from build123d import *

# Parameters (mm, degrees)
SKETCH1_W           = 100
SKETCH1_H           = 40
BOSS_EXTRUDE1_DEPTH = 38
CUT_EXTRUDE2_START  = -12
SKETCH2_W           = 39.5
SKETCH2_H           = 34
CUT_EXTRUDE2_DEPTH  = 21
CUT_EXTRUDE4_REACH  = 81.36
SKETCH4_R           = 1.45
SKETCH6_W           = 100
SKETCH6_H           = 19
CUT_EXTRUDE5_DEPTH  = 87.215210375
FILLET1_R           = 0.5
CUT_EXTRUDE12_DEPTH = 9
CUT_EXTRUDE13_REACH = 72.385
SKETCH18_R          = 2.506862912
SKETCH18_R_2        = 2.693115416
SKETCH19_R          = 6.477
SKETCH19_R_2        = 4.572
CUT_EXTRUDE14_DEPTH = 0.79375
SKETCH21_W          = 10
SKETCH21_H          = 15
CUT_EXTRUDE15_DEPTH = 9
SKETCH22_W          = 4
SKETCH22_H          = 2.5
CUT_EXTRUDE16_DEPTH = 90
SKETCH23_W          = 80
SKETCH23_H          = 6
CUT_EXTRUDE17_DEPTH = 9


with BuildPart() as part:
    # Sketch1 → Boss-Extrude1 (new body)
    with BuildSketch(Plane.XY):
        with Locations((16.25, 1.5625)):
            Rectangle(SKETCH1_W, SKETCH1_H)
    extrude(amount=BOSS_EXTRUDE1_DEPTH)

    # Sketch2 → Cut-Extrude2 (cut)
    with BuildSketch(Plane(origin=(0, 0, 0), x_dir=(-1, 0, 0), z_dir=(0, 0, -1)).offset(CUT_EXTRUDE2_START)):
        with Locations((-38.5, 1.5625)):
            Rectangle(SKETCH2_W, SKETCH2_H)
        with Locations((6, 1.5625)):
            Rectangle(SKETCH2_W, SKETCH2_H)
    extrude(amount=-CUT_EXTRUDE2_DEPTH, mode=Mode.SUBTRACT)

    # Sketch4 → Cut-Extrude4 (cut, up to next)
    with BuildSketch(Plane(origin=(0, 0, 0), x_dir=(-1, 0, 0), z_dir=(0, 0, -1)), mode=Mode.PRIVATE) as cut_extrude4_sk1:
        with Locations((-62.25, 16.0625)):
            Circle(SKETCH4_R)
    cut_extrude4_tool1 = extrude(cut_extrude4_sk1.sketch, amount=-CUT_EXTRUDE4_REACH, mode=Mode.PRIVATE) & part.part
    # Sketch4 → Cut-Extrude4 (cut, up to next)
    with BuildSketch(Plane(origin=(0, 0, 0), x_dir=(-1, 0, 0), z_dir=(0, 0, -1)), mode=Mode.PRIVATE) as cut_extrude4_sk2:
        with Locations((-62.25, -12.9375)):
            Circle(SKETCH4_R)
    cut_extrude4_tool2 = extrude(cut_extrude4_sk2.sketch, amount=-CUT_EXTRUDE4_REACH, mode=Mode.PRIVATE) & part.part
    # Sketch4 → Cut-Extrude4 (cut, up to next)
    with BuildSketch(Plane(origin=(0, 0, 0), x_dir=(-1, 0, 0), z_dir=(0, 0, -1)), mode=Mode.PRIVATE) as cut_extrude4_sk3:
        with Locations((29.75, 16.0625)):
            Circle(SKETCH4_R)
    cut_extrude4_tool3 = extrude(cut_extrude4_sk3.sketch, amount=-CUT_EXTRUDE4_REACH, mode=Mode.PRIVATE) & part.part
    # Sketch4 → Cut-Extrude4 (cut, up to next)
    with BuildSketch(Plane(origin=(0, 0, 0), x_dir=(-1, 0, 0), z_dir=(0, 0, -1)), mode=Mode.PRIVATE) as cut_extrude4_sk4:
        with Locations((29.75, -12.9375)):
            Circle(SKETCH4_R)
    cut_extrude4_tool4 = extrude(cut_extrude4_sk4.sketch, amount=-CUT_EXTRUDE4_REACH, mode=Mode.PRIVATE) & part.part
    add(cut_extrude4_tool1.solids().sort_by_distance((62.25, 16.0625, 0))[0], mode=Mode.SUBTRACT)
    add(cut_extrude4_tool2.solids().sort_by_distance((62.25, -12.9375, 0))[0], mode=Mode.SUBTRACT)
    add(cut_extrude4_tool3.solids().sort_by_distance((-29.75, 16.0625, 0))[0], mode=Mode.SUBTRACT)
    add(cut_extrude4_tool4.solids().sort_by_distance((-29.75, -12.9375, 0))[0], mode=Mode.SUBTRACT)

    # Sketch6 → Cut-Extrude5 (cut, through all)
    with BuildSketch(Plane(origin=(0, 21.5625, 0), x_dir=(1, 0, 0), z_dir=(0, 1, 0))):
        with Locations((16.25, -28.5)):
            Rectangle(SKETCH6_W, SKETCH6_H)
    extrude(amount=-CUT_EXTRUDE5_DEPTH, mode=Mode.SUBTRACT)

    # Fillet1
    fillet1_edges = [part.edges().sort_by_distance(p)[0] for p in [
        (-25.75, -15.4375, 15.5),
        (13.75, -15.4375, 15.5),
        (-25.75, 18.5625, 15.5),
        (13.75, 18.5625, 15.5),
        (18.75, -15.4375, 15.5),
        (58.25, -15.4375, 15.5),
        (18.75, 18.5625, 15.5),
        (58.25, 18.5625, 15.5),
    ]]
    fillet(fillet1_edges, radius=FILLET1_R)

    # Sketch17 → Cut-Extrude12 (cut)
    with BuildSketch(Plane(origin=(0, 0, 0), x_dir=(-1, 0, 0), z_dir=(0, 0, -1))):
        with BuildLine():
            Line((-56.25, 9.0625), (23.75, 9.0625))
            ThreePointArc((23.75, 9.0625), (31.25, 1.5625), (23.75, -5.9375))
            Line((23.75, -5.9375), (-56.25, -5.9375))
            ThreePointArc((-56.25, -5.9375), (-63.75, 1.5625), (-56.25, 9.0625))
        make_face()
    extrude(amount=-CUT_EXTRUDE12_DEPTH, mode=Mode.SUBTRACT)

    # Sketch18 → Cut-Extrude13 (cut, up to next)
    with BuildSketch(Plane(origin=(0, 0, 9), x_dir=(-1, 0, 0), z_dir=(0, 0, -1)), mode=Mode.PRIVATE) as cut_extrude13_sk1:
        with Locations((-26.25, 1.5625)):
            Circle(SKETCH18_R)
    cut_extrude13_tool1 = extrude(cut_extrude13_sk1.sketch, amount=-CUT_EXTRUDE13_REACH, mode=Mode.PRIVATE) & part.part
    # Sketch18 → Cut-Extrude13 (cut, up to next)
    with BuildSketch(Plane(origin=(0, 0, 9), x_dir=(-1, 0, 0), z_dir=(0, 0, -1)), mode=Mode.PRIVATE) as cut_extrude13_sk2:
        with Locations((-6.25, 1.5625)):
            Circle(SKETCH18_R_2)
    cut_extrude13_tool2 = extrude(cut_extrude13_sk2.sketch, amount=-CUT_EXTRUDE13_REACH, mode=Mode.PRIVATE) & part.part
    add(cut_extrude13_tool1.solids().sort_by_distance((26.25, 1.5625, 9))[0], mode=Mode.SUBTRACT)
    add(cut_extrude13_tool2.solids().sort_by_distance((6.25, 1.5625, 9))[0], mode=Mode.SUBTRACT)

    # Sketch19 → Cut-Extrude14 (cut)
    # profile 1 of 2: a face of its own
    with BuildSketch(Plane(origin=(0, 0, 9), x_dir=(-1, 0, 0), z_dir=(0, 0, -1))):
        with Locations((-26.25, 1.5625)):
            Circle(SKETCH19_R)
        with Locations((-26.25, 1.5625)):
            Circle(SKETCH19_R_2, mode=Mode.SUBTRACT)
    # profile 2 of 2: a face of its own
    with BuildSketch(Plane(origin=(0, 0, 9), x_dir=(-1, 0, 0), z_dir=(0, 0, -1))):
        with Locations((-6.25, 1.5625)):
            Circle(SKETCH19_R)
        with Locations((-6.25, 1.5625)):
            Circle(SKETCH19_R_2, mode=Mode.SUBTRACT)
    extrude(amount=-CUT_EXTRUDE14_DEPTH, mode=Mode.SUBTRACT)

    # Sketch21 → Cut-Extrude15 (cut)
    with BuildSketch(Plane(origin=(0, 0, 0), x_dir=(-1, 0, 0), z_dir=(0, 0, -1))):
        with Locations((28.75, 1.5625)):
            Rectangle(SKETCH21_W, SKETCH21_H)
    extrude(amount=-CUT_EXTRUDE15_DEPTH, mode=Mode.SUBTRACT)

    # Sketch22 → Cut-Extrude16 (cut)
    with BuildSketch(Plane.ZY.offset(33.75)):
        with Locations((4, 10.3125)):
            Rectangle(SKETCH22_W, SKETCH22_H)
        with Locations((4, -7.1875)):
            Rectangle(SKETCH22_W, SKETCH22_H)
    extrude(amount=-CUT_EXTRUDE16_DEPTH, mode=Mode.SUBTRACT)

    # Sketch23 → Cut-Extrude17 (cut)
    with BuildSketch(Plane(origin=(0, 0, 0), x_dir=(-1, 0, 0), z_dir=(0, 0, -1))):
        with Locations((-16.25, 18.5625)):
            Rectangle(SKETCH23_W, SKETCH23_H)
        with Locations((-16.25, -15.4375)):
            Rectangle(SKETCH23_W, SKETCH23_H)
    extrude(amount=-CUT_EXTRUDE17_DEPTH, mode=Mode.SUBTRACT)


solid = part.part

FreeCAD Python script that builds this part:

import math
import FreeCAD as App
import Part
import Sketcher
from FreeCAD import Vector
Q = App.Units.Quantity


def edges_at(feature, points):
    """Names of the edges that pass closest to the given points."""
    edges = feature.Shape.Edges
    near = lambda p: min(range(len(edges)), key=lambda i: edges[i].distToShape(Part.Vertex(*p))[0])
    return sorted({f"Edge{near(p) + 1}" for p in points})

doc = App.newDocument("Part")
body = doc.addObject("PartDesign::Body", "Body")

sketch1 = body.newObject("Sketcher::SketchObject", "Sketch")
sketch1.AttachmentSupport = (doc.getObject("XY_Plane"), [""])
sketch1.MapMode = "FlatFace"
sketch1.addGeometry([
    Part.LineSegment(Vector(-34, 22, 0), Vector(-34, -18, 0)),
    Part.LineSegment(Vector(-34, -18, 0), Vector(66, -18, 0)),
    Part.LineSegment(Vector(66, -18, 0), Vector(66, 22, 0)),
    Part.LineSegment(Vector(66, 22, 0), Vector(-34, 22, 0)),
], False)
sketch1.addConstraint([
    Sketcher.Constraint("Coincident", 0, 2, 1, 1),
    Sketcher.Constraint("Coincident", 1, 2, 2, 1),
    Sketcher.Constraint("Coincident", 2, 2, 3, 1),
    Sketcher.Constraint("Coincident", 3, 2, 0, 1),
    Sketcher.Constraint("Vertical", 0),
    Sketcher.Constraint("Horizontal", 1),
    Sketcher.Constraint("Vertical", 2),
    Sketcher.Constraint("Horizontal", 3),
    Sketcher.Constraint("DistanceX", 1, 1, 1, 2, Q("100 mm")),
    Sketcher.Constraint("DistanceY", 0, 2, 0, 1, Q("40 mm")),
    Sketcher.Constraint("DistanceX", 0, 2, -1, 1, Q("33.75 mm")),
    Sketcher.Constraint("DistanceY", 0, 2, -1, 1, Q("18.4375 mm")),
])
pad1 = body.newObject("PartDesign::Pad", "Pad")
pad1.Profile = sketch1
pad1.Length = 38

sketch2 = body.newObject("Sketcher::SketchObject", "Sketch001")
sketch2.AttachmentSupport = (doc.getObject("XY_Plane"), [""])
sketch2.MapMode = "FlatFace"
sketch2.AttachmentOffset = App.Placement(Vector(0, 0, 12), App.Rotation())
sketch2.addGeometry([
    Part.LineSegment(Vector(58, 19, 0), Vector(58, -15, 0)),
    Part.LineSegment(Vector(58, -15, 0), Vector(19, -15, 0)),
    Part.LineSegment(Vector(19, -15, 0), Vector(19, 19, 0)),
    Part.LineSegment(Vector(19, 19, 0), Vector(58, 19, 0)),
    Part.LineSegment(Vector(14, 19, 0), Vector(14, -15, 0)),
    Part.LineSegment(Vector(14, -15, 0), Vector(-26, -15, 0)),
    Part.LineSegment(Vector(-26, -15, 0), Vector(-26, 19, 0)),
    Part.LineSegment(Vector(-26, 19, 0), Vector(14, 19, 0)),
], False)
sketch2.addConstraint([
    Sketcher.Constraint("Coincident", 0, 2, 1, 1),
    Sketcher.Constraint("Coincident", 1, 2, 2, 1),
    Sketcher.Constraint("Coincident", 2, 2, 3, 1),
    Sketcher.Constraint("Coincident", 3, 2, 0, 1),
    Sketcher.Constraint("Coincident", 4, 2, 5, 1),
    Sketcher.Constraint("Coincident", 5, 2, 6, 1),
    Sketcher.Constraint("Coincident", 6, 2, 7, 1),
    Sketcher.Constraint("Coincident", 7, 2, 4, 1),
    Sketcher.Constraint("Vertical", 0),
    Sketcher.Constraint("Horizontal", 1),
    Sketcher.Constraint("Vertical", 2),
    Sketcher.Constraint("Horizontal", 3),
    Sketcher.Constraint("Vertical", 4),
    Sketcher.Constraint("Horizontal", 5),
    Sketcher.Constraint("Vertical", 6),
    Sketcher.Constraint("Horizontal", 7),
    Sketcher.Constraint("Horizontal", 1, 2, 4, 2),
    Sketcher.Constraint("Horizontal", 3, 2, 6, 2),
    Sketcher.Constraint("Equal", 3, 5),
    Sketcher.Constraint("DistanceY", 0, 2, 0, 1, Q("34 mm")),
    Sketcher.Constraint("DistanceX", 1, 2, 1, 1, Q("39.5 mm")),
    Sketcher.Constraint("DistanceX", 4, 2, 1, 2, Q("5 mm")),
    Sketcher.Constraint("DistanceX", -1, 1, 0, 2, Q("58.25 mm")),
    Sketcher.Constraint("DistanceY", 0, 2, -1, 1, Q("15.4375 mm")),
])
pocket1 = body.newObject("PartDesign::Pocket", "Pocket")
pocket1.Profile = sketch2
pocket1.Length = 21
pocket1.Reversed = True

sketch3 = body.newObject("Sketcher::SketchObject", "Sketch002")
sketch3.AttachmentSupport = (doc.getObject("XY_Plane"), [""])
sketch3.MapMode = "FlatFace"
sketch3.addGeometry(Part.Circle(Vector(62.2, 16.1, 0), Vector(0, 0, 1), 1.4), False)
sketch3.addConstraint([
    Sketcher.Constraint("Diameter", 0, Q("2.9 mm")),
    Sketcher.Constraint("DistanceX", -1, 1, 0, 3, Q("62.25 mm")),
    Sketcher.Constraint("DistanceY", -1, 1, 0, 3, Q("16.0625 mm")),
])
pocket2 = body.newObject("PartDesign::Pocket", "Pocket001")
pocket2.Profile = sketch3
pocket2.Type = "UpToFirst"
pocket2.Reversed = True

sketch4 = body.newObject("Sketcher::SketchObject", "Sketch003")
sketch4.AttachmentSupport = (doc.getObject("XY_Plane"), [""])
sketch4.MapMode = "FlatFace"
sketch4.addGeometry(Part.Circle(Vector(62.2, -12.9, 0), Vector(0, 0, 1), 1.4), False)
sketch4.addConstraint([
    Sketcher.Constraint("Diameter", 0, Q("2.9 mm")),
    Sketcher.Constraint("DistanceX", -1, 1, 0, 3, Q("62.25 mm")),
    Sketcher.Constraint("DistanceY", 0, 3, -1, 1, Q("12.9375 mm")),
])
pocket3 = body.newObject("PartDesign::Pocket", "Pocket002")
pocket3.Profile = sketch4
pocket3.Type = "UpToFirst"
pocket3.Reversed = True

sketch5 = body.newObject("Sketcher::SketchObject", "Sketch004")
sketch5.AttachmentSupport = (doc.getObject("XY_Plane"), [""])
sketch5.MapMode = "FlatFace"
sketch5.addGeometry(Part.Circle(Vector(-29.8, 16.1, 0), Vector(0, 0, 1), 1.4), False)
sketch5.addConstraint([
    Sketcher.Constraint("Diameter", 0, Q("2.9 mm")),
    Sketcher.Constraint("DistanceX", 0, 3, -1, 1, Q("29.75 mm")),
    Sketcher.Constraint("DistanceY", -1, 1, 0, 3, Q("16.0625 mm")),
])
pocket4 = body.newObject("PartDesign::Pocket", "Pocket003")
pocket4.Profile = sketch5
pocket4.Type = "UpToFirst"
pocket4.Reversed = True

sketch6 = body.newObject("Sketcher::SketchObject", "Sketch005")
sketch6.AttachmentSupport = (doc.getObject("XY_Plane"), [""])
sketch6.MapMode = "FlatFace"
sketch6.addGeometry(Part.Circle(Vector(-29.8, -12.9, 0), Vector(0, 0, 1), 1.4), False)
sketch6.addConstraint([
    Sketcher.Constraint("Diameter", 0, Q("2.9 mm")),
    Sketcher.Constraint("DistanceX", 0, 3, -1, 1, Q("29.75 mm")),
    Sketcher.Constraint("DistanceY", 0, 3, -1, 1, Q("12.9375 mm")),
])
pocket5 = body.newObject("PartDesign::Pocket", "Pocket004")
pocket5.Profile = sketch6
pocket5.Type = "UpToFirst"
pocket5.Reversed = True

sketch7 = body.newObject("Sketcher::SketchObject", "Sketch006")
sketch7.AttachmentSupport = (doc.getObject("XZ_Plane"), [""])
sketch7.MapMode = "FlatFace"
sketch7.AttachmentOffset = App.Placement(Vector(0, 0, -21.5625), App.Rotation())
sketch7.addGeometry([
    Part.LineSegment(Vector(-34, 19, 0), Vector(-34, 38, 0)),
    Part.LineSegment(Vector(-34, 38, 0), Vector(66, 38, 0)),
    Part.LineSegment(Vector(66, 38, 0), Vector(66, 19, 0)),
    Part.LineSegment(Vector(66, 19, 0), Vector(-34, 19, 0)),
], False)
sketch7.addConstraint([
    Sketcher.Constraint("Coincident", 0, 2, 1, 1),
    Sketcher.Constraint("Coincident", 1, 2, 2, 1),
    Sketcher.Constraint("Coincident", 2, 2, 3, 1),
    Sketcher.Constraint("Coincident", 3, 2, 0, 1),
    Sketcher.Constraint("Vertical", 0),
    Sketcher.Constraint("Horizontal", 1),
    Sketcher.Constraint("Vertical", 2),
    Sketcher.Constraint("Horizontal", 3),
    Sketcher.Constraint("DistanceX", 1, 1, 1, 2, Q("100 mm")),
    Sketcher.Constraint("DistanceY", 0, 1, 0, 2, Q("19 mm")),
    Sketcher.Constraint("DistanceY", -1, 1, 0, 2, Q("38 mm")),
    Sketcher.Constraint("DistanceX", 0, 2, -1, 1, Q("33.75 mm")),
])
pocket6 = body.newObject("PartDesign::Pocket", "Pocket005")
pocket6.Profile = sketch7
pocket6.Type = "ThroughAll"
pocket6.Reversed = True
doc.recompute()

fillet = body.newObject("PartDesign::Fillet", "Fillet")
fillet.Base = (pocket6, edges_at(pocket6, [
    (-25.75, -15.438, 15.5),
    (13.75, -15.438, 15.5),
    (-25.75, 18.562, 15.5),
    (13.75, 18.562, 15.5),
    (18.75, -15.438, 15.5),
    (58.25, -15.438, 15.5),
    (18.75, 18.562, 15.5),
    (58.25, 18.562, 15.5),
]))
fillet.Radius = 0.5

sketch8 = body.newObject("Sketcher::SketchObject", "Sketch007")
sketch8.AttachmentSupport = (doc.getObject("XY_Plane"), [""])
sketch8.MapMode = "FlatFace"
sketch8.addGeometry([
    Part.LineSegment(Vector(-24, 9, 0), Vector(56, 9, 0)),
    Part.ArcOfCircle(Part.Circle(Vector(56, 2, 0), Vector(0, 0, 1), 8), math.radians(-90), math.radians(90)),
    Part.LineSegment(Vector(56, -6, 0), Vector(-24, -6, 0)),
    Part.ArcOfCircle(Part.Circle(Vector(-24, 2, 0), Vector(0, 0, 1), 8), math.radians(90), math.radians(270)),
], False)
sketch8.addConstraint([
    Sketcher.Constraint("Tangent", 0, 2, 1, 2),
    Sketcher.Constraint("Tangent", 1, 1, 2, 1),
    Sketcher.Constraint("Tangent", 2, 2, 3, 2),
    Sketcher.Constraint("Tangent", 3, 1, 0, 1),
    Sketcher.Constraint("Horizontal", 0),
    Sketcher.Constraint("Horizontal", 2),
    Sketcher.Constraint("Radius", 1, Q("7.5 mm")),
    Sketcher.Constraint("DistanceX", 0, 1, 0, 2, Q("80 mm")),
    Sketcher.Constraint("DistanceX", -1, 1, 1, 3, Q("56.25 mm")),
    Sketcher.Constraint("DistanceY", -1, 1, 1, 3, Q("1.5625 mm")),
])
pocket7 = body.newObject("PartDesign::Pocket", "Pocket006")
pocket7.Profile = sketch8
pocket7.Length = 9
pocket7.Reversed = True

sketch9 = body.newObject("Sketcher::SketchObject", "Sketch008")
sketch9.AttachmentSupport = (doc.getObject("XY_Plane"), [""])
sketch9.MapMode = "FlatFace"
sketch9.AttachmentOffset = App.Placement(Vector(0, 0, 9), App.Rotation())
sketch9.addGeometry(Part.Circle(Vector(26.2, 1.6, 0), Vector(0, 0, 1), 2.5), False)
sketch9.addConstraint([
    Sketcher.Constraint("DistanceX", -1, 1, 0, 3, Q("26.25 mm")),
    Sketcher.Constraint("Diameter", 0, Q("5.013726 mm")),
    Sketcher.Constraint("DistanceY", -1, 1, 0, 3, Q("1.5625 mm")),
])
pocket8 = body.newObject("PartDesign::Pocket", "Pocket007")
pocket8.Profile = sketch9
pocket8.Type = "UpToFirst"
pocket8.Reversed = True

sketch10 = body.newObject("Sketcher::SketchObject", "Sketch009")
sketch10.AttachmentSupport = (doc.getObject("XY_Plane"), [""])
sketch10.MapMode = "FlatFace"
sketch10.AttachmentOffset = App.Placement(Vector(0, 0, 9), App.Rotation())
sketch10.addGeometry(Part.Circle(Vector(6.2, 1.6, 0), Vector(0, 0, 1), 2.7), False)
sketch10.addConstraint([
    Sketcher.Constraint("Diameter", 0, Q("5.386231 mm")),
    Sketcher.Constraint("DistanceX", -1, 1, 0, 3, Q("6.25 mm")),
    Sketcher.Constraint("DistanceY", -1, 1, 0, 3, Q("1.5625 mm")),
])
pocket9 = body.newObject("PartDesign::Pocket", "Pocket008")
pocket9.Profile = sketch10
pocket9.Type = "UpToFirst"
pocket9.Reversed = True

sketch11 = body.newObject("Sketcher::SketchObject", "Sketch010")
sketch11.AttachmentSupport = (doc.getObject("XY_Plane"), [""])
sketch11.MapMode = "FlatFace"
sketch11.AttachmentOffset = App.Placement(Vector(0, 0, 9), App.Rotation())
sketch11.addGeometry([
    Part.Circle(Vector(26.2, 1.6, 0), Vector(0, 0, 1), 6.5),
    Part.Circle(Vector(26.2, 1.6, 0), Vector(0, 0, 1), 4.6),
    Part.Circle(Vector(6.2, 1.6, 0), Vector(0, 0, 1), 6.5),
    Part.Circle(Vector(6.2, 1.6, 0), Vector(0, 0, 1), 4.6),
], False)
sketch11.addConstraint([
    Sketcher.Constraint("Coincident", 1, 3, 0, 3),
    Sketcher.Constraint("Coincident", 3, 3, 2, 3),
    Sketcher.Constraint("Equal", 0, 2),
    Sketcher.Constraint("Equal", 1, 3),
    Sketcher.Constraint("Horizontal", 1, 3, 2, 3),
    Sketcher.Constraint("Diameter", 0, Q("12.954 mm")),
    Sketcher.Constraint("Diameter", 1, Q("9.144 mm")),
    Sketcher.Constraint("DistanceX", 2, 3, 0, 3, Q("20 mm")),
    Sketcher.Constraint("DistanceX", -1, 1, 0, 3, Q("26.25 mm")),
    Sketcher.Constraint("DistanceY", -1, 1, 0, 3, Q("1.5625 mm")),
])
pocket10 = body.newObject("PartDesign::Pocket", "Pocket009")
pocket10.Profile = sketch11
pocket10.Length = 0.79375
pocket10.Reversed = True

sketch12 = body.newObject("Sketcher::SketchObject", "Sketch011")
sketch12.AttachmentSupport = (doc.getObject("XY_Plane"), [""])
sketch12.MapMode = "FlatFace"
sketch12.addGeometry([
    Part.LineSegment(Vector(-24, 9, 0), Vector(-24, -6, 0)),
    Part.LineSegment(Vector(-24, -6, 0), Vector(-34, -6, 0)),
    Part.LineSegment(Vector(-34, -6, 0), Vector(-34, 9, 0)),
    Part.LineSegment(Vector(-34, 9, 0), Vector(-24, 9, 0)),
], False)
sketch12.addConstraint([
    Sketcher.Constraint("Coincident", 0, 2, 1, 1),
    Sketcher.Constraint("Coincident", 1, 2, 2, 1),
    Sketcher.Constraint("Coincident", 2, 2, 3, 1),
    Sketcher.Constraint("Coincident", 3, 2, 0, 1),
    Sketcher.Constraint("Vertical", 0),
    Sketcher.Constraint("Horizontal", 1),
    Sketcher.Constraint("Vertical", 2),
    Sketcher.Constraint("Horizontal", 3),
    Sketcher.Constraint("DistanceX", 1, 2, 1, 1, Q("10 mm")),
    Sketcher.Constraint("DistanceY", 0, 2, 0, 1, Q("15 mm")),
    Sketcher.Constraint("DistanceX", 0, 2, -1, 1, Q("23.75 mm")),
    Sketcher.Constraint("DistanceY", 0, 2, -1, 1, Q("5.9375 mm")),
])
pocket11 = body.newObject("PartDesign::Pocket", "Pocket010")
pocket11.Profile = sketch12
pocket11.Length = 9
pocket11.Reversed = True

sketch13 = body.newObject("Sketcher::SketchObject", "Sketch012")
sketch13.AttachmentSupport = (doc.getObject("YZ_Plane"), [""])
sketch13.MapMode = "FlatFace"
sketch13.AttachmentOffset = App.Placement(Vector(0, 0, -33.75), App.Rotation())
sketch13.addGeometry([
    Part.LineSegment(Vector(11.6, 2, 0), Vector(9.1, 2, 0)),
    Part.LineSegment(Vector(9.1, 2, 0), Vector(9.1, 6, 0)),
    Part.LineSegment(Vector(9.1, 6, 0), Vector(11.6, 6, 0)),
    Part.LineSegment(Vector(11.6, 6, 0), Vector(11.6, 2, 0)),
    Part.LineSegment(Vector(-5.9, 2, 0), Vector(-8.4, 2, 0)),
    Part.LineSegment(Vector(-8.4, 2, 0), Vector(-8.4, 6, 0)),
    Part.LineSegment(Vector(-8.4, 6, 0), Vector(-5.9, 6, 0)),
    Part.LineSegment(Vector(-5.9, 6, 0), Vector(-5.9, 2, 0)),
], False)
sketch13.addConstraint([
    Sketcher.Constraint("Coincident", 0, 2, 1, 1),
    Sketcher.Constraint("Coincident", 1, 2, 2, 1),
    Sketcher.Constraint("Coincident", 2, 2, 3, 1),
    Sketcher.Constraint("Coincident", 3, 2, 0, 1),
    Sketcher.Constraint("Coincident", 4, 2, 5, 1),
    Sketcher.Constraint("Coincident", 5, 2, 6, 1),
    Sketcher.Constraint("Coincident", 6, 2, 7, 1),
    Sketcher.Constraint("Coincident", 7, 2, 4, 1),
    Sketcher.Constraint("Horizontal", 0),
    Sketcher.Constraint("Vertical", 1),
    Sketcher.Constraint("Horizontal", 2),
    Sketcher.Constraint("Vertical", 3),
    Sketcher.Constraint("Horizontal", 4),
    Sketcher.Constraint("Vertical", 5),
    Sketcher.Constraint("Horizontal", 6),
    Sketcher.Constraint("Vertical", 7),
    Sketcher.Constraint("Horizontal", 3, 2, 4, 2),
    Sketcher.Constraint("Horizontal", 2, 2, 5, 2),
    Sketcher.Constraint("Equal", 2, 4),
    Sketcher.Constraint("DistanceY", 1, 1, 1, 2, Q("4 mm")),
    Sketcher.Constraint("DistanceX", 0, 2, 0, 1, Q("2.5 mm")),
    Sketcher.Constraint("DistanceY", -1, 1, 0, 2, Q("2 mm")),
    Sketcher.Constraint("DistanceX", 4, 2, 3, 2, Q("20 mm")),
    Sketcher.Constraint("DistanceX", -1, 1, 0, 2, Q("9.0625 mm")),
])
pocket12 = body.newObject("PartDesign::Pocket", "Pocket011")
pocket12.Profile = sketch13
pocket12.Length = 90
pocket12.Reversed = True

sketch14 = body.newObject("Sketcher::SketchObject", "Sketch013")
sketch14.AttachmentSupport = (doc.getObject("XY_Plane"), [""])
sketch14.MapMode = "FlatFace"
sketch14.addGeometry([
    Part.LineSegment(Vector(56, 22, 0), Vector(56, 16, 0)),
    Part.LineSegment(Vector(56, 16, 0), Vector(-24, 16, 0)),
    Part.LineSegment(Vector(-24, 16, 0), Vector(-24, 22, 0)),
    Part.LineSegment(Vector(-24, 22, 0), Vector(56, 22, 0)),
    Part.LineSegment(Vector(56, -12, 0), Vector(56, -18, 0)),
    Part.LineSegment(Vector(56, -18, 0), Vector(-24, -18, 0)),
    Part.LineSegment(Vector(-24, -18, 0), Vector(-24, -12, 0)),
    Part.LineSegment(Vector(-24, -12, 0), Vector(56, -12, 0)),
], False)
sketch14.addConstraint([
    Sketcher.Constraint("Coincident", 0, 2, 1, 1),
    Sketcher.Constraint("Coincident", 1, 2, 2, 1),
    Sketcher.Constraint("Coincident", 2, 2, 3, 1),
    Sketcher.Constraint("Coincident", 3, 2, 0, 1),
    Sketcher.Constraint("Coincident", 4, 2, 5, 1),
    Sketcher.Constraint("Coincident", 5, 2, 6, 1),
    Sketcher.Constraint("Coincident", 6, 2, 7, 1),
    Sketcher.Constraint("Coincident", 7, 2, 4, 1),
    Sketcher.Constraint("Vertical", 0),
    Sketcher.Constraint("Horizontal", 1),
    Sketcher.Constraint("Vertical", 2),
    Sketcher.Constraint("Horizontal", 3),
    Sketcher.Constraint("Vertical", 4),
    Sketcher.Constraint("Horizontal", 5),
    Sketcher.Constraint("Vertical", 6),
    Sketcher.Constraint("Horizontal", 7),
    Sketcher.Constraint("Vertical", 3, 2, 4, 2),
    Sketcher.Constraint("Vertical", 2, 2, 5, 2),
    Sketcher.Constraint("Equal", 2, 4),
    Sketcher.Constraint("DistanceX", 1, 2, 1, 1, Q("80 mm")),
    Sketcher.Constraint("DistanceY", 0, 2, 0, 1, Q("6 mm")),
    Sketcher.Constraint("DistanceY", 4, 2, 0, 2, Q("34 mm")),
    Sketcher.Constraint("DistanceX", -1, 1, 0, 2, Q("56.25 mm")),
    Sketcher.Constraint("DistanceY", -1, 1, 0, 2, Q("15.5625 mm")),
])
pocket13 = body.newObject("PartDesign::Pocket", "Pocket012")
pocket13.Profile = sketch14
pocket13.Length = 9
pocket13.Reversed = True

doc.recompute()
